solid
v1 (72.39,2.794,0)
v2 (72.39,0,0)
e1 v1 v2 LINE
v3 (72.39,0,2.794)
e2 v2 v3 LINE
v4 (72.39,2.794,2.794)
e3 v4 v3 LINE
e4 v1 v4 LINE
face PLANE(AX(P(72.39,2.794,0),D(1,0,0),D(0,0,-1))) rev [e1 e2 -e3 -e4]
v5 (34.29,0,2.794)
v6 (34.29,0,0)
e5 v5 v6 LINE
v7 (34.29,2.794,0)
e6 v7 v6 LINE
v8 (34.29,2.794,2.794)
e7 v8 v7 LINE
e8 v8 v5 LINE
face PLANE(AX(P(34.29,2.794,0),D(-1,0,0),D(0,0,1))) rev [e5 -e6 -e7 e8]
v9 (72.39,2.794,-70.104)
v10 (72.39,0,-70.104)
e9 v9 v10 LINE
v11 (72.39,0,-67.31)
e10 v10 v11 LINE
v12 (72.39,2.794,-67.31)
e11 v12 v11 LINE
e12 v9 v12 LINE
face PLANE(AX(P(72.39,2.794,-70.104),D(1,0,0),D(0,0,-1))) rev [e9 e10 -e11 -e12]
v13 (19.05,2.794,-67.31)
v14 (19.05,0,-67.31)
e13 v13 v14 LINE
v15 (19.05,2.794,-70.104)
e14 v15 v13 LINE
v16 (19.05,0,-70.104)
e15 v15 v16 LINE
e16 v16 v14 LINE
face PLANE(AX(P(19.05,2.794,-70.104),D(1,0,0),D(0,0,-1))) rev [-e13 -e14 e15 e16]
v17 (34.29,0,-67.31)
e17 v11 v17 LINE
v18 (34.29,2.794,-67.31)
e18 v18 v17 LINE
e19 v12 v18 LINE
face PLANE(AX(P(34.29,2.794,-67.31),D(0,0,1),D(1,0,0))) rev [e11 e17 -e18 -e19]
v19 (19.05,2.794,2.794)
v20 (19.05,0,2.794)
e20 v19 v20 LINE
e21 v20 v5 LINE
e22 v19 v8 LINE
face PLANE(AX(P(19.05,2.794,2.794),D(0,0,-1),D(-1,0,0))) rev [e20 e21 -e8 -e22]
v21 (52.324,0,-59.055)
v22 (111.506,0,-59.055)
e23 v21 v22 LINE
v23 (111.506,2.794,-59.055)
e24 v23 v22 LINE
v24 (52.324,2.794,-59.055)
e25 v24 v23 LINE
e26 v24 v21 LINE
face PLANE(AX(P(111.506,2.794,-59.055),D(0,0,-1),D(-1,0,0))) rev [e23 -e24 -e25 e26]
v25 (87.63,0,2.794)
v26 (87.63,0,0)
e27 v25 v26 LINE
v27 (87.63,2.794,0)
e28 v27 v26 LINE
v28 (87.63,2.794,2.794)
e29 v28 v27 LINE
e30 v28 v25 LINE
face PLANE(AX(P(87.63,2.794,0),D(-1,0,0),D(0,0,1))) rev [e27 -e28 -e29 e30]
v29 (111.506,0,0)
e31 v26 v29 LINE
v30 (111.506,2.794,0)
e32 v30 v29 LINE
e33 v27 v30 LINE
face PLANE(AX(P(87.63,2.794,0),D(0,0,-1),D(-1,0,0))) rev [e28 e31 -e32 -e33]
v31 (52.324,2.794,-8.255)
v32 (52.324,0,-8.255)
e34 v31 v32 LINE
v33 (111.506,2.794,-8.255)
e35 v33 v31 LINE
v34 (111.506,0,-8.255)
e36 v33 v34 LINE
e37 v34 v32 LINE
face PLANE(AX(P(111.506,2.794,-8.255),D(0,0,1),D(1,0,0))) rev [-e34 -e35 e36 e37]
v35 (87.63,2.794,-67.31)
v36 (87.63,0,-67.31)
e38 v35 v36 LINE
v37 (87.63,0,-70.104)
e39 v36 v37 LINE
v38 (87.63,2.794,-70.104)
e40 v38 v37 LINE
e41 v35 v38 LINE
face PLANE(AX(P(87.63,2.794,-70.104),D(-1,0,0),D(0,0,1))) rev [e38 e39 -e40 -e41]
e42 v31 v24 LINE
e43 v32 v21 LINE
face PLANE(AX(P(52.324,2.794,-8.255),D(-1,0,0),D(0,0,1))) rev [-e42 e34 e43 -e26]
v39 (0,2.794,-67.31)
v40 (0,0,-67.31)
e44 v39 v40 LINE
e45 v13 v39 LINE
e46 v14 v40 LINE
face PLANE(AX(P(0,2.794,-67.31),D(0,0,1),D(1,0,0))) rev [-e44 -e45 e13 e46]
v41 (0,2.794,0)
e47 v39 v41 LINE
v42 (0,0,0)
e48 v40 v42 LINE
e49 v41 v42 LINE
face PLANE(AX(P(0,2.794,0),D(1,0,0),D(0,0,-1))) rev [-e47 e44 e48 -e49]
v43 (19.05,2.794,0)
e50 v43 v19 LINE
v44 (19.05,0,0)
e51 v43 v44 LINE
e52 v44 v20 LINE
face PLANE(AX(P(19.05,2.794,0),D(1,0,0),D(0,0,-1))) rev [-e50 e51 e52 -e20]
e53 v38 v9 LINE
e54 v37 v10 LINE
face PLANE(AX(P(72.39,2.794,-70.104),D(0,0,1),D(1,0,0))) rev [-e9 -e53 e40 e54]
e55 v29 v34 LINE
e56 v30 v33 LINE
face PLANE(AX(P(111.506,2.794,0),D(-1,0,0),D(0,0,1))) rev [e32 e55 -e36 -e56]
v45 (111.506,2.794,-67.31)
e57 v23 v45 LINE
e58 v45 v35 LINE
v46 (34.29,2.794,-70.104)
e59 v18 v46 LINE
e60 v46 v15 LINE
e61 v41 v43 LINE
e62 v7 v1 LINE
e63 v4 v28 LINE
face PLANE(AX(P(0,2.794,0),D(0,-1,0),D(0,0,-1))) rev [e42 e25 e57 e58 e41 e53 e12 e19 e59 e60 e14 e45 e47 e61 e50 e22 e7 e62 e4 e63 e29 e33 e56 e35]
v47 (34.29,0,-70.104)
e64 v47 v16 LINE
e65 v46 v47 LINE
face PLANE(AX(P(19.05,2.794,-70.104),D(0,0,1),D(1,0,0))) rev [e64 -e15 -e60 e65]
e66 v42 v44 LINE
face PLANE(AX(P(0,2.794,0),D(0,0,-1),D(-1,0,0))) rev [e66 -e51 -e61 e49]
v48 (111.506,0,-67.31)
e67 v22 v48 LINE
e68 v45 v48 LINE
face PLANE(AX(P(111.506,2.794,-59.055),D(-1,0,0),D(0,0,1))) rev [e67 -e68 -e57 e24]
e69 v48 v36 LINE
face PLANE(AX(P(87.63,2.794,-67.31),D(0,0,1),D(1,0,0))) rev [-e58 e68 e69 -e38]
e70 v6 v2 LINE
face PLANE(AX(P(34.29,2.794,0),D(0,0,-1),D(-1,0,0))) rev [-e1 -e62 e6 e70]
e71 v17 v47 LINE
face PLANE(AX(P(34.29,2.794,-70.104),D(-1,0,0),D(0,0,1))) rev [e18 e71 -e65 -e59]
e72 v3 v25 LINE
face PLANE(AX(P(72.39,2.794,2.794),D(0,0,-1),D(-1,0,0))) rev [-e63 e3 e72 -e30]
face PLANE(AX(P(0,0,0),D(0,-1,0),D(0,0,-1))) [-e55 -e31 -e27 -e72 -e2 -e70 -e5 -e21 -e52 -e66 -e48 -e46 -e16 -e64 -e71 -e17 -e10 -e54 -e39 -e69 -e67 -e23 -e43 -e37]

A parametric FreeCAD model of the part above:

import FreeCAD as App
import Part
import Sketcher
from FreeCAD import Vector
Q = App.Units.Quantity

doc = App.newDocument("Part")
body = doc.addObject("PartDesign::Body", "Body")

# Sketch on XZ plane
sketch1 = doc.addObject("Sketcher::SketchObject", "Sketch")
body.addObject(sketch1)
sketch1.AttachmentSupport = (doc.XZ_Plane, [""])
sketch1.MapMode = "FlatFace"
sketch1.addGeometry([
    Part.LineSegment(Vector(111.5, -59.1, 0), Vector(111.5, -67.3, 0)),  # 0
    Part.LineSegment(Vector(111.5, -67.3, 0), Vector(87.6, -67.3, 0)),  # 1
    Part.LineSegment(Vector(87.6, -67.3, 0), Vector(87.6, -70.1, 0)),  # 2
    Part.LineSegment(Vector(87.6, -70.1, 0), Vector(72.4, -70.1, 0)),  # 3
    Part.LineSegment(Vector(72.4, -70.1, 0), Vector(72.4, -67.3, 0)),  # 4
    Part.LineSegment(Vector(72.4, -67.3, 0), Vector(34.3, -67.3, 0)),  # 5
    Part.LineSegment(Vector(34.3, -67.3, 0), Vector(34.3, -70.1, 0)),  # 6
    Part.LineSegment(Vector(34.3, -70.1, 0), Vector(19.1, -70.1, 0)),  # 7
    Part.LineSegment(Vector(19.1, -70.1, 0), Vector(19.1, -67.3, 0)),  # 8
    Part.LineSegment(Vector(19.1, -67.3, 0), Vector(0, -67.3, 0)),  # 9
    Part.LineSegment(Vector(0, -67.3, 0), Vector(0, 0, 0)),  # 10
    Part.LineSegment(Vector(0, 0, 0), Vector(19.1, 0, 0)),  # 11
    Part.LineSegment(Vector(19.1, 0, 0), Vector(19.1, 2.8, 0)),  # 12
    Part.LineSegment(Vector(19.1, 2.8, 0), Vector(34.3, 2.8, 0)),  # 13
    Part.LineSegment(Vector(34.3, 2.8, 0), Vector(34.3, 0, 0)),  # 14
    Part.LineSegment(Vector(34.3, 0, 0), Vector(72.4, 0, 0)),  # 15
    Part.LineSegment(Vector(72.4, 0, 0), Vector(72.4, 2.8, 0)),  # 16
    Part.LineSegment(Vector(72.4, 2.8, 0), Vector(87.6, 2.8, 0)),  # 17
    Part.LineSegment(Vector(87.6, 2.8, 0), Vector(87.6, 0, 0)),  # 18
    Part.LineSegment(Vector(87.6, 0, 0), Vector(111.5, 0, 0)),  # 19
    Part.LineSegment(Vector(111.5, 0, 0), Vector(111.5, -8.3, 0)),  # 20
    Part.LineSegment(Vector(111.5, -8.3, 0), Vector(52.3, -8.3, 0)),  # 21
    Part.LineSegment(Vector(52.3, -8.3, 0), Vector(52.3, -59.1, 0)),  # 22
    Part.LineSegment(Vector(52.3, -59.1, 0), Vector(111.5, -59.1, 0)),  # 23
], False)
sketch1.addConstraint([
    Sketcher.Constraint("Coincident", 0, 2, 1, 1),
    Sketcher.Constraint("Coincident", 1, 2, 2, 1),
    Sketcher.Constraint("Coincident", 2, 2, 3, 1),
    Sketcher.Constraint("Coincident", 3, 2, 4, 1),
    Sketcher.Constraint("Coincident", 4, 2, 5, 1),
    Sketcher.Constraint("Coincident", 5, 2, 6, 1),
    Sketcher.Constraint("Coincident", 6, 2, 7, 1),
    Sketcher.Constraint("Coincident", 7, 2, 8, 1),
    Sketcher.Constraint("Coincident", 8, 2, 9, 1),
    Sketcher.Constraint("Coincident", 9, 2, 10, 1),
    Sketcher.Constraint("Coincident", 10, 2, 11, 1),
    Sketcher.Constraint("Coincident", 11, 2, 12, 1),
    Sketcher.Constraint("Coincident", 12, 2, 13, 1),
    Sketcher.Constraint("Coincident", 13, 2, 14, 1),
    Sketcher.Constraint("Coincident", 14, 2, 15, 1),
    Sketcher.Constraint("Coincident", 15, 2, 16, 1),
    Sketcher.Constraint("Coincident", 16, 2, 17, 1),
    Sketcher.Constraint("Coincident", 17, 2, 18, 1),
    Sketcher.Constraint("Coincident", 18, 2, 19, 1),
    Sketcher.Constraint("Coincident", 19, 2, 20, 1),
    Sketcher.Constraint("Coincident", 20, 2, 21, 1),
    Sketcher.Constraint("Coincident", 21, 2, 22, 1),
    Sketcher.Constraint("Coincident", 22, 2, 23, 1),
    Sketcher.Constraint("Coincident", 23, 2, 0, 1),
    Sketcher.Constraint("Vertical", 0),
    Sketcher.Constraint("Horizontal", 1),
    Sketcher.Constraint("Vertical", 2),
    Sketcher.Constraint("Horizontal", 3),
    Sketcher.Constraint("Vertical", 4),
    Sketcher.Constraint("Horizontal", 5),
    Sketcher.Constraint("Vertical", 6),
    Sketcher.Constraint("Horizontal", 7),
    Sketcher.Constraint("Vertical", 8),
    Sketcher.Constraint("Horizontal", 9),
    Sketcher.Constraint("Vertical", 10),
    Sketcher.Constraint("Horizontal", 11),
    Sketcher.Constraint("Vertical", 12),
    Sketcher.Constraint("Horizontal", 13),
    Sketcher.Constraint("Vertical", 14),
    Sketcher.Constraint("Horizontal", 15),
    Sketcher.Constraint("Vertical", 16),
    Sketcher.Constraint("Horizontal", 17),
    Sketcher.Constraint("Vertical", 18),
    Sketcher.Constraint("Horizontal", 19),
    Sketcher.Constraint("Vertical", 20),
    Sketcher.Constraint("Horizontal", 21),
    Sketcher.Constraint("Vertical", 22),
    Sketcher.Constraint("Horizontal", 23),
    Sketcher.Constraint("Coincident", 10, 2, -1, 1),
    Sketcher.Constraint("PointOnObject", 14, 2, -1),
    Sketcher.Constraint("PointOnObject", 18, 2, -1),
    Sketcher.Constraint("Horizontal", 1, 2, 4, 2),
    Sketcher.Constraint("Horizontal", 3, 2, 6, 2),
    Sketcher.Constraint("Horizontal", 5, 2, 8, 2),
    Sketcher.Constraint("Horizontal", 13, 2, 16, 2),
    Sketcher.Constraint("Vertical", 8, 2, 11, 2),
    Sketcher.Constraint("Vertical", 6, 2, 13, 2),
    Sketcher.Constraint("Vertical", 4, 2, 15, 2),
    Sketcher.Constraint("Vertical", 2, 2, 17, 2),
    Sketcher.Constraint("Vertical", 0, 2, 19, 2),
    Sketcher.Constraint("Equal", 3, 7),
    Sketcher.Constraint("Equal", 8, 12),
    Sketcher.Constraint("Equal", 0, 20),
    Sketcher.Constraint("DistanceY", 22, 2, 22, 1, Q("2 in")),
    Sketcher.Constraint("DistanceX", 3, 2, 3, 1, Q("0.6 in")),
    Sketcher.Constraint("DistanceX", 5, 2, 5, 1, Q("1.5 in")),
    Sketcher.Constraint("DistanceX", 1, 2, 1, 1, Q("0.94 in")),
    Sketcher.Constraint("DistanceX", 9, 2, 9, 1, Q("0.75 in")),
    Sketcher.Constraint("DistanceX", 21, 2, 21, 1, Q("2.33 in")),
    Sketcher.Constraint("DistanceY", 2, 2, 2, 1, Q("0.11 in")),
    Sketcher.Constraint("DistanceY", 10, 1, 10, 2, Q("2.65 in")),
])
pad1 = doc.addObject("PartDesign::Pad", "Pad")
body.addObject(pad1)
pad1.Profile = sketch1
pad1.Length = Q("0.11 in")
pad1.Reversed = True

doc.recompute()
